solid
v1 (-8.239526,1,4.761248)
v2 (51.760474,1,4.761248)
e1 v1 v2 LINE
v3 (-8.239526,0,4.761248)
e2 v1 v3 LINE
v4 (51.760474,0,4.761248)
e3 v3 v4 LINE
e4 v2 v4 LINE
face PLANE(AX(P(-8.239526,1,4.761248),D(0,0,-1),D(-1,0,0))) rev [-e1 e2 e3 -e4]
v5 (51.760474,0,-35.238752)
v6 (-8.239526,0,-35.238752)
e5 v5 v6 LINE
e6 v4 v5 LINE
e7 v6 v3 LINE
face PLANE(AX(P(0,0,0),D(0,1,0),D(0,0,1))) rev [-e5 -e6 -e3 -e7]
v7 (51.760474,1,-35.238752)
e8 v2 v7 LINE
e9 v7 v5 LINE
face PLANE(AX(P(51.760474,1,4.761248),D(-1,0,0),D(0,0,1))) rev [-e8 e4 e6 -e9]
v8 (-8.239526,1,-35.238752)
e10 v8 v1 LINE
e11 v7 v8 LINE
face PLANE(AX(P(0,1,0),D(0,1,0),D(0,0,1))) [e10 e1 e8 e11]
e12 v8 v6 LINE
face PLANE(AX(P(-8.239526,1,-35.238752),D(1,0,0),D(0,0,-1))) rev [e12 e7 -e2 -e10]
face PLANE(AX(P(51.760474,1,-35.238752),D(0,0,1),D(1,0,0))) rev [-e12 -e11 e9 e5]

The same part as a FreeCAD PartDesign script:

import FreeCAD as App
import Part
import Sketcher
from FreeCAD import Vector


def add_polygon(sketch, points):
    """Adds a closed chain of lines whose ends are joined by coincident constraints."""
    first, n = sketch.GeometryCount, len(points)
    for a, b in zip(points, points[1:] + points[:1]):
        sketch.addGeometry(Part.LineSegment(App.Vector(*a, 0), App.Vector(*b, 0)), False)
    for i in range(n):
        sketch.addConstraint(Sketcher.Constraint("Coincident", first + i, 2, first + (i + 1) % n, 1))

doc = App.newDocument("Part")
body = doc.addObject("PartDesign::Body", "Body")

# Sketch on XZ plane
sketch1 = doc.addObject("Sketcher::SketchObject", "Sketch")
body.addObject(sketch1)
sketch1.AttachmentSupport = (doc.XZ_Plane, [""])
sketch1.MapMode = "FlatFace"
add_polygon(sketch1, [(52, 5), (52, -35), (-8, -35), (-8, 5)])  # lines 0-3
sketch1.addConstraint([
    Sketcher.Constraint("Vertical", 0),
    Sketcher.Constraint("Horizontal", 1),
    Sketcher.Constraint("Vertical", 2),
    Sketcher.Constraint("Horizontal", 3),
    Sketcher.Constraint("DistanceX", 1, 2, 1, 1, 60.0),
    Sketcher.Constraint("DistanceY", 0, 2, 0, 1, 40.0),
    Sketcher.Constraint("DistanceY", 0, 2, -1, 1, 35.238752),
    Sketcher.Constraint("DistanceX", -1, 1, 0, 2, 51.760474),
])
pad1 = doc.addObject("PartDesign::Pad", "Pad")
body.addObject(pad1)
pad1.Profile = sketch1
pad1.Length = 1
pad1.Reversed = True

doc.recompute()
